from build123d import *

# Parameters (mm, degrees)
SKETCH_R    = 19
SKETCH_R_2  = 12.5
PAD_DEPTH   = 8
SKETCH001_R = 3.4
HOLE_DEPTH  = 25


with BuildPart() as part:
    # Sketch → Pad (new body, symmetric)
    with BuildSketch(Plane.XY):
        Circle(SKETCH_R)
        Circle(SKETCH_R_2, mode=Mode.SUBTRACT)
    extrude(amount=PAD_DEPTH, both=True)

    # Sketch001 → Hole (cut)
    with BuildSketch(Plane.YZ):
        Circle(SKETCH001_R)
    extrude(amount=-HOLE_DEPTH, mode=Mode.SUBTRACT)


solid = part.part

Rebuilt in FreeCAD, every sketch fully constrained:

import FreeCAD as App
import Part
import Sketcher

doc = App.newDocument("Part")
params = doc.addObject("Spreadsheet::Sheet", "Params")
for row, (alias, value) in enumerate([
    ("sketch1_diameter", "38 mm"),
    ("sketch1_diameter2", "25 mm"),
    ("pad1_length", "16 mm"),
    ("sketch2_diameter", "6.8 mm"),
    ("pocket1_length", "25 mm"),
], start=1):
    params.set(f"A{row}", alias)
    params.set(f"B{row}", "=" + value)
    params.setAlias(f"B{row}", alias)

body = doc.addObject("PartDesign::Body", "Body")

# Sketch on XY plane
sketch1 = body.newObject("Sketcher::SketchObject", "Sketch")
sketch1.AttachmentSupport = (doc.getObject("XY_Plane"), [""])
sketch1.MapMode = "FlatFace"
sketch1.addGeometry([
    Part.Circle(App.Vector(0, 0, 0), App.Vector(0, 0, 1), 19),
    Part.Circle(App.Vector(0, 0, 0), App.Vector(0, 0, 1), 12),
], False)
sketch1.addConstraint([
    Sketcher.Constraint("Coincident", 0, 3, -1, 1),
    Sketcher.Constraint("Coincident", 1, 3, -1, 1),
    Sketcher.Constraint("Diameter", 0, 38.0),
    Sketcher.Constraint("Diameter", 1, 25.0),
])
sketch1.setExpression("Constraints[2]", "Params.sketch1_diameter")
sketch1.setExpression("Constraints[3]", "Params.sketch1_diameter2")
pad1 = body.newObject("PartDesign::Pad", "Pad")
pad1.Profile = sketch1
pad1.setExpression("Length", "Params.pad1_length")
pad1.Midplane = True

# Sketch on YZ plane
sketch2 = body.newObject("Sketcher::SketchObject", "Sketch001")
sketch2.AttachmentSupport = (doc.getObject("YZ_Plane"), [""])
sketch2.MapMode = "FlatFace"
sketch2.addGeometry(Part.Circle(App.Vector(0, 0, 0), App.Vector(0, 0, 1), 3.4), False)
sketch2.addConstraint([
    Sketcher.Constraint("Coincident", 0, 3, -1, 1),
    Sketcher.Constraint("Diameter", 0, 6.8),
])
sketch2.setExpression("Constraints[1]", "Params.sketch2_diameter")
pocket1 = body.newObject("PartDesign::Pocket", "Pocket")
pocket1.Profile = sketch2
pocket1.setExpression("Length", "Params.pocket1_length")

doc.recompute()
